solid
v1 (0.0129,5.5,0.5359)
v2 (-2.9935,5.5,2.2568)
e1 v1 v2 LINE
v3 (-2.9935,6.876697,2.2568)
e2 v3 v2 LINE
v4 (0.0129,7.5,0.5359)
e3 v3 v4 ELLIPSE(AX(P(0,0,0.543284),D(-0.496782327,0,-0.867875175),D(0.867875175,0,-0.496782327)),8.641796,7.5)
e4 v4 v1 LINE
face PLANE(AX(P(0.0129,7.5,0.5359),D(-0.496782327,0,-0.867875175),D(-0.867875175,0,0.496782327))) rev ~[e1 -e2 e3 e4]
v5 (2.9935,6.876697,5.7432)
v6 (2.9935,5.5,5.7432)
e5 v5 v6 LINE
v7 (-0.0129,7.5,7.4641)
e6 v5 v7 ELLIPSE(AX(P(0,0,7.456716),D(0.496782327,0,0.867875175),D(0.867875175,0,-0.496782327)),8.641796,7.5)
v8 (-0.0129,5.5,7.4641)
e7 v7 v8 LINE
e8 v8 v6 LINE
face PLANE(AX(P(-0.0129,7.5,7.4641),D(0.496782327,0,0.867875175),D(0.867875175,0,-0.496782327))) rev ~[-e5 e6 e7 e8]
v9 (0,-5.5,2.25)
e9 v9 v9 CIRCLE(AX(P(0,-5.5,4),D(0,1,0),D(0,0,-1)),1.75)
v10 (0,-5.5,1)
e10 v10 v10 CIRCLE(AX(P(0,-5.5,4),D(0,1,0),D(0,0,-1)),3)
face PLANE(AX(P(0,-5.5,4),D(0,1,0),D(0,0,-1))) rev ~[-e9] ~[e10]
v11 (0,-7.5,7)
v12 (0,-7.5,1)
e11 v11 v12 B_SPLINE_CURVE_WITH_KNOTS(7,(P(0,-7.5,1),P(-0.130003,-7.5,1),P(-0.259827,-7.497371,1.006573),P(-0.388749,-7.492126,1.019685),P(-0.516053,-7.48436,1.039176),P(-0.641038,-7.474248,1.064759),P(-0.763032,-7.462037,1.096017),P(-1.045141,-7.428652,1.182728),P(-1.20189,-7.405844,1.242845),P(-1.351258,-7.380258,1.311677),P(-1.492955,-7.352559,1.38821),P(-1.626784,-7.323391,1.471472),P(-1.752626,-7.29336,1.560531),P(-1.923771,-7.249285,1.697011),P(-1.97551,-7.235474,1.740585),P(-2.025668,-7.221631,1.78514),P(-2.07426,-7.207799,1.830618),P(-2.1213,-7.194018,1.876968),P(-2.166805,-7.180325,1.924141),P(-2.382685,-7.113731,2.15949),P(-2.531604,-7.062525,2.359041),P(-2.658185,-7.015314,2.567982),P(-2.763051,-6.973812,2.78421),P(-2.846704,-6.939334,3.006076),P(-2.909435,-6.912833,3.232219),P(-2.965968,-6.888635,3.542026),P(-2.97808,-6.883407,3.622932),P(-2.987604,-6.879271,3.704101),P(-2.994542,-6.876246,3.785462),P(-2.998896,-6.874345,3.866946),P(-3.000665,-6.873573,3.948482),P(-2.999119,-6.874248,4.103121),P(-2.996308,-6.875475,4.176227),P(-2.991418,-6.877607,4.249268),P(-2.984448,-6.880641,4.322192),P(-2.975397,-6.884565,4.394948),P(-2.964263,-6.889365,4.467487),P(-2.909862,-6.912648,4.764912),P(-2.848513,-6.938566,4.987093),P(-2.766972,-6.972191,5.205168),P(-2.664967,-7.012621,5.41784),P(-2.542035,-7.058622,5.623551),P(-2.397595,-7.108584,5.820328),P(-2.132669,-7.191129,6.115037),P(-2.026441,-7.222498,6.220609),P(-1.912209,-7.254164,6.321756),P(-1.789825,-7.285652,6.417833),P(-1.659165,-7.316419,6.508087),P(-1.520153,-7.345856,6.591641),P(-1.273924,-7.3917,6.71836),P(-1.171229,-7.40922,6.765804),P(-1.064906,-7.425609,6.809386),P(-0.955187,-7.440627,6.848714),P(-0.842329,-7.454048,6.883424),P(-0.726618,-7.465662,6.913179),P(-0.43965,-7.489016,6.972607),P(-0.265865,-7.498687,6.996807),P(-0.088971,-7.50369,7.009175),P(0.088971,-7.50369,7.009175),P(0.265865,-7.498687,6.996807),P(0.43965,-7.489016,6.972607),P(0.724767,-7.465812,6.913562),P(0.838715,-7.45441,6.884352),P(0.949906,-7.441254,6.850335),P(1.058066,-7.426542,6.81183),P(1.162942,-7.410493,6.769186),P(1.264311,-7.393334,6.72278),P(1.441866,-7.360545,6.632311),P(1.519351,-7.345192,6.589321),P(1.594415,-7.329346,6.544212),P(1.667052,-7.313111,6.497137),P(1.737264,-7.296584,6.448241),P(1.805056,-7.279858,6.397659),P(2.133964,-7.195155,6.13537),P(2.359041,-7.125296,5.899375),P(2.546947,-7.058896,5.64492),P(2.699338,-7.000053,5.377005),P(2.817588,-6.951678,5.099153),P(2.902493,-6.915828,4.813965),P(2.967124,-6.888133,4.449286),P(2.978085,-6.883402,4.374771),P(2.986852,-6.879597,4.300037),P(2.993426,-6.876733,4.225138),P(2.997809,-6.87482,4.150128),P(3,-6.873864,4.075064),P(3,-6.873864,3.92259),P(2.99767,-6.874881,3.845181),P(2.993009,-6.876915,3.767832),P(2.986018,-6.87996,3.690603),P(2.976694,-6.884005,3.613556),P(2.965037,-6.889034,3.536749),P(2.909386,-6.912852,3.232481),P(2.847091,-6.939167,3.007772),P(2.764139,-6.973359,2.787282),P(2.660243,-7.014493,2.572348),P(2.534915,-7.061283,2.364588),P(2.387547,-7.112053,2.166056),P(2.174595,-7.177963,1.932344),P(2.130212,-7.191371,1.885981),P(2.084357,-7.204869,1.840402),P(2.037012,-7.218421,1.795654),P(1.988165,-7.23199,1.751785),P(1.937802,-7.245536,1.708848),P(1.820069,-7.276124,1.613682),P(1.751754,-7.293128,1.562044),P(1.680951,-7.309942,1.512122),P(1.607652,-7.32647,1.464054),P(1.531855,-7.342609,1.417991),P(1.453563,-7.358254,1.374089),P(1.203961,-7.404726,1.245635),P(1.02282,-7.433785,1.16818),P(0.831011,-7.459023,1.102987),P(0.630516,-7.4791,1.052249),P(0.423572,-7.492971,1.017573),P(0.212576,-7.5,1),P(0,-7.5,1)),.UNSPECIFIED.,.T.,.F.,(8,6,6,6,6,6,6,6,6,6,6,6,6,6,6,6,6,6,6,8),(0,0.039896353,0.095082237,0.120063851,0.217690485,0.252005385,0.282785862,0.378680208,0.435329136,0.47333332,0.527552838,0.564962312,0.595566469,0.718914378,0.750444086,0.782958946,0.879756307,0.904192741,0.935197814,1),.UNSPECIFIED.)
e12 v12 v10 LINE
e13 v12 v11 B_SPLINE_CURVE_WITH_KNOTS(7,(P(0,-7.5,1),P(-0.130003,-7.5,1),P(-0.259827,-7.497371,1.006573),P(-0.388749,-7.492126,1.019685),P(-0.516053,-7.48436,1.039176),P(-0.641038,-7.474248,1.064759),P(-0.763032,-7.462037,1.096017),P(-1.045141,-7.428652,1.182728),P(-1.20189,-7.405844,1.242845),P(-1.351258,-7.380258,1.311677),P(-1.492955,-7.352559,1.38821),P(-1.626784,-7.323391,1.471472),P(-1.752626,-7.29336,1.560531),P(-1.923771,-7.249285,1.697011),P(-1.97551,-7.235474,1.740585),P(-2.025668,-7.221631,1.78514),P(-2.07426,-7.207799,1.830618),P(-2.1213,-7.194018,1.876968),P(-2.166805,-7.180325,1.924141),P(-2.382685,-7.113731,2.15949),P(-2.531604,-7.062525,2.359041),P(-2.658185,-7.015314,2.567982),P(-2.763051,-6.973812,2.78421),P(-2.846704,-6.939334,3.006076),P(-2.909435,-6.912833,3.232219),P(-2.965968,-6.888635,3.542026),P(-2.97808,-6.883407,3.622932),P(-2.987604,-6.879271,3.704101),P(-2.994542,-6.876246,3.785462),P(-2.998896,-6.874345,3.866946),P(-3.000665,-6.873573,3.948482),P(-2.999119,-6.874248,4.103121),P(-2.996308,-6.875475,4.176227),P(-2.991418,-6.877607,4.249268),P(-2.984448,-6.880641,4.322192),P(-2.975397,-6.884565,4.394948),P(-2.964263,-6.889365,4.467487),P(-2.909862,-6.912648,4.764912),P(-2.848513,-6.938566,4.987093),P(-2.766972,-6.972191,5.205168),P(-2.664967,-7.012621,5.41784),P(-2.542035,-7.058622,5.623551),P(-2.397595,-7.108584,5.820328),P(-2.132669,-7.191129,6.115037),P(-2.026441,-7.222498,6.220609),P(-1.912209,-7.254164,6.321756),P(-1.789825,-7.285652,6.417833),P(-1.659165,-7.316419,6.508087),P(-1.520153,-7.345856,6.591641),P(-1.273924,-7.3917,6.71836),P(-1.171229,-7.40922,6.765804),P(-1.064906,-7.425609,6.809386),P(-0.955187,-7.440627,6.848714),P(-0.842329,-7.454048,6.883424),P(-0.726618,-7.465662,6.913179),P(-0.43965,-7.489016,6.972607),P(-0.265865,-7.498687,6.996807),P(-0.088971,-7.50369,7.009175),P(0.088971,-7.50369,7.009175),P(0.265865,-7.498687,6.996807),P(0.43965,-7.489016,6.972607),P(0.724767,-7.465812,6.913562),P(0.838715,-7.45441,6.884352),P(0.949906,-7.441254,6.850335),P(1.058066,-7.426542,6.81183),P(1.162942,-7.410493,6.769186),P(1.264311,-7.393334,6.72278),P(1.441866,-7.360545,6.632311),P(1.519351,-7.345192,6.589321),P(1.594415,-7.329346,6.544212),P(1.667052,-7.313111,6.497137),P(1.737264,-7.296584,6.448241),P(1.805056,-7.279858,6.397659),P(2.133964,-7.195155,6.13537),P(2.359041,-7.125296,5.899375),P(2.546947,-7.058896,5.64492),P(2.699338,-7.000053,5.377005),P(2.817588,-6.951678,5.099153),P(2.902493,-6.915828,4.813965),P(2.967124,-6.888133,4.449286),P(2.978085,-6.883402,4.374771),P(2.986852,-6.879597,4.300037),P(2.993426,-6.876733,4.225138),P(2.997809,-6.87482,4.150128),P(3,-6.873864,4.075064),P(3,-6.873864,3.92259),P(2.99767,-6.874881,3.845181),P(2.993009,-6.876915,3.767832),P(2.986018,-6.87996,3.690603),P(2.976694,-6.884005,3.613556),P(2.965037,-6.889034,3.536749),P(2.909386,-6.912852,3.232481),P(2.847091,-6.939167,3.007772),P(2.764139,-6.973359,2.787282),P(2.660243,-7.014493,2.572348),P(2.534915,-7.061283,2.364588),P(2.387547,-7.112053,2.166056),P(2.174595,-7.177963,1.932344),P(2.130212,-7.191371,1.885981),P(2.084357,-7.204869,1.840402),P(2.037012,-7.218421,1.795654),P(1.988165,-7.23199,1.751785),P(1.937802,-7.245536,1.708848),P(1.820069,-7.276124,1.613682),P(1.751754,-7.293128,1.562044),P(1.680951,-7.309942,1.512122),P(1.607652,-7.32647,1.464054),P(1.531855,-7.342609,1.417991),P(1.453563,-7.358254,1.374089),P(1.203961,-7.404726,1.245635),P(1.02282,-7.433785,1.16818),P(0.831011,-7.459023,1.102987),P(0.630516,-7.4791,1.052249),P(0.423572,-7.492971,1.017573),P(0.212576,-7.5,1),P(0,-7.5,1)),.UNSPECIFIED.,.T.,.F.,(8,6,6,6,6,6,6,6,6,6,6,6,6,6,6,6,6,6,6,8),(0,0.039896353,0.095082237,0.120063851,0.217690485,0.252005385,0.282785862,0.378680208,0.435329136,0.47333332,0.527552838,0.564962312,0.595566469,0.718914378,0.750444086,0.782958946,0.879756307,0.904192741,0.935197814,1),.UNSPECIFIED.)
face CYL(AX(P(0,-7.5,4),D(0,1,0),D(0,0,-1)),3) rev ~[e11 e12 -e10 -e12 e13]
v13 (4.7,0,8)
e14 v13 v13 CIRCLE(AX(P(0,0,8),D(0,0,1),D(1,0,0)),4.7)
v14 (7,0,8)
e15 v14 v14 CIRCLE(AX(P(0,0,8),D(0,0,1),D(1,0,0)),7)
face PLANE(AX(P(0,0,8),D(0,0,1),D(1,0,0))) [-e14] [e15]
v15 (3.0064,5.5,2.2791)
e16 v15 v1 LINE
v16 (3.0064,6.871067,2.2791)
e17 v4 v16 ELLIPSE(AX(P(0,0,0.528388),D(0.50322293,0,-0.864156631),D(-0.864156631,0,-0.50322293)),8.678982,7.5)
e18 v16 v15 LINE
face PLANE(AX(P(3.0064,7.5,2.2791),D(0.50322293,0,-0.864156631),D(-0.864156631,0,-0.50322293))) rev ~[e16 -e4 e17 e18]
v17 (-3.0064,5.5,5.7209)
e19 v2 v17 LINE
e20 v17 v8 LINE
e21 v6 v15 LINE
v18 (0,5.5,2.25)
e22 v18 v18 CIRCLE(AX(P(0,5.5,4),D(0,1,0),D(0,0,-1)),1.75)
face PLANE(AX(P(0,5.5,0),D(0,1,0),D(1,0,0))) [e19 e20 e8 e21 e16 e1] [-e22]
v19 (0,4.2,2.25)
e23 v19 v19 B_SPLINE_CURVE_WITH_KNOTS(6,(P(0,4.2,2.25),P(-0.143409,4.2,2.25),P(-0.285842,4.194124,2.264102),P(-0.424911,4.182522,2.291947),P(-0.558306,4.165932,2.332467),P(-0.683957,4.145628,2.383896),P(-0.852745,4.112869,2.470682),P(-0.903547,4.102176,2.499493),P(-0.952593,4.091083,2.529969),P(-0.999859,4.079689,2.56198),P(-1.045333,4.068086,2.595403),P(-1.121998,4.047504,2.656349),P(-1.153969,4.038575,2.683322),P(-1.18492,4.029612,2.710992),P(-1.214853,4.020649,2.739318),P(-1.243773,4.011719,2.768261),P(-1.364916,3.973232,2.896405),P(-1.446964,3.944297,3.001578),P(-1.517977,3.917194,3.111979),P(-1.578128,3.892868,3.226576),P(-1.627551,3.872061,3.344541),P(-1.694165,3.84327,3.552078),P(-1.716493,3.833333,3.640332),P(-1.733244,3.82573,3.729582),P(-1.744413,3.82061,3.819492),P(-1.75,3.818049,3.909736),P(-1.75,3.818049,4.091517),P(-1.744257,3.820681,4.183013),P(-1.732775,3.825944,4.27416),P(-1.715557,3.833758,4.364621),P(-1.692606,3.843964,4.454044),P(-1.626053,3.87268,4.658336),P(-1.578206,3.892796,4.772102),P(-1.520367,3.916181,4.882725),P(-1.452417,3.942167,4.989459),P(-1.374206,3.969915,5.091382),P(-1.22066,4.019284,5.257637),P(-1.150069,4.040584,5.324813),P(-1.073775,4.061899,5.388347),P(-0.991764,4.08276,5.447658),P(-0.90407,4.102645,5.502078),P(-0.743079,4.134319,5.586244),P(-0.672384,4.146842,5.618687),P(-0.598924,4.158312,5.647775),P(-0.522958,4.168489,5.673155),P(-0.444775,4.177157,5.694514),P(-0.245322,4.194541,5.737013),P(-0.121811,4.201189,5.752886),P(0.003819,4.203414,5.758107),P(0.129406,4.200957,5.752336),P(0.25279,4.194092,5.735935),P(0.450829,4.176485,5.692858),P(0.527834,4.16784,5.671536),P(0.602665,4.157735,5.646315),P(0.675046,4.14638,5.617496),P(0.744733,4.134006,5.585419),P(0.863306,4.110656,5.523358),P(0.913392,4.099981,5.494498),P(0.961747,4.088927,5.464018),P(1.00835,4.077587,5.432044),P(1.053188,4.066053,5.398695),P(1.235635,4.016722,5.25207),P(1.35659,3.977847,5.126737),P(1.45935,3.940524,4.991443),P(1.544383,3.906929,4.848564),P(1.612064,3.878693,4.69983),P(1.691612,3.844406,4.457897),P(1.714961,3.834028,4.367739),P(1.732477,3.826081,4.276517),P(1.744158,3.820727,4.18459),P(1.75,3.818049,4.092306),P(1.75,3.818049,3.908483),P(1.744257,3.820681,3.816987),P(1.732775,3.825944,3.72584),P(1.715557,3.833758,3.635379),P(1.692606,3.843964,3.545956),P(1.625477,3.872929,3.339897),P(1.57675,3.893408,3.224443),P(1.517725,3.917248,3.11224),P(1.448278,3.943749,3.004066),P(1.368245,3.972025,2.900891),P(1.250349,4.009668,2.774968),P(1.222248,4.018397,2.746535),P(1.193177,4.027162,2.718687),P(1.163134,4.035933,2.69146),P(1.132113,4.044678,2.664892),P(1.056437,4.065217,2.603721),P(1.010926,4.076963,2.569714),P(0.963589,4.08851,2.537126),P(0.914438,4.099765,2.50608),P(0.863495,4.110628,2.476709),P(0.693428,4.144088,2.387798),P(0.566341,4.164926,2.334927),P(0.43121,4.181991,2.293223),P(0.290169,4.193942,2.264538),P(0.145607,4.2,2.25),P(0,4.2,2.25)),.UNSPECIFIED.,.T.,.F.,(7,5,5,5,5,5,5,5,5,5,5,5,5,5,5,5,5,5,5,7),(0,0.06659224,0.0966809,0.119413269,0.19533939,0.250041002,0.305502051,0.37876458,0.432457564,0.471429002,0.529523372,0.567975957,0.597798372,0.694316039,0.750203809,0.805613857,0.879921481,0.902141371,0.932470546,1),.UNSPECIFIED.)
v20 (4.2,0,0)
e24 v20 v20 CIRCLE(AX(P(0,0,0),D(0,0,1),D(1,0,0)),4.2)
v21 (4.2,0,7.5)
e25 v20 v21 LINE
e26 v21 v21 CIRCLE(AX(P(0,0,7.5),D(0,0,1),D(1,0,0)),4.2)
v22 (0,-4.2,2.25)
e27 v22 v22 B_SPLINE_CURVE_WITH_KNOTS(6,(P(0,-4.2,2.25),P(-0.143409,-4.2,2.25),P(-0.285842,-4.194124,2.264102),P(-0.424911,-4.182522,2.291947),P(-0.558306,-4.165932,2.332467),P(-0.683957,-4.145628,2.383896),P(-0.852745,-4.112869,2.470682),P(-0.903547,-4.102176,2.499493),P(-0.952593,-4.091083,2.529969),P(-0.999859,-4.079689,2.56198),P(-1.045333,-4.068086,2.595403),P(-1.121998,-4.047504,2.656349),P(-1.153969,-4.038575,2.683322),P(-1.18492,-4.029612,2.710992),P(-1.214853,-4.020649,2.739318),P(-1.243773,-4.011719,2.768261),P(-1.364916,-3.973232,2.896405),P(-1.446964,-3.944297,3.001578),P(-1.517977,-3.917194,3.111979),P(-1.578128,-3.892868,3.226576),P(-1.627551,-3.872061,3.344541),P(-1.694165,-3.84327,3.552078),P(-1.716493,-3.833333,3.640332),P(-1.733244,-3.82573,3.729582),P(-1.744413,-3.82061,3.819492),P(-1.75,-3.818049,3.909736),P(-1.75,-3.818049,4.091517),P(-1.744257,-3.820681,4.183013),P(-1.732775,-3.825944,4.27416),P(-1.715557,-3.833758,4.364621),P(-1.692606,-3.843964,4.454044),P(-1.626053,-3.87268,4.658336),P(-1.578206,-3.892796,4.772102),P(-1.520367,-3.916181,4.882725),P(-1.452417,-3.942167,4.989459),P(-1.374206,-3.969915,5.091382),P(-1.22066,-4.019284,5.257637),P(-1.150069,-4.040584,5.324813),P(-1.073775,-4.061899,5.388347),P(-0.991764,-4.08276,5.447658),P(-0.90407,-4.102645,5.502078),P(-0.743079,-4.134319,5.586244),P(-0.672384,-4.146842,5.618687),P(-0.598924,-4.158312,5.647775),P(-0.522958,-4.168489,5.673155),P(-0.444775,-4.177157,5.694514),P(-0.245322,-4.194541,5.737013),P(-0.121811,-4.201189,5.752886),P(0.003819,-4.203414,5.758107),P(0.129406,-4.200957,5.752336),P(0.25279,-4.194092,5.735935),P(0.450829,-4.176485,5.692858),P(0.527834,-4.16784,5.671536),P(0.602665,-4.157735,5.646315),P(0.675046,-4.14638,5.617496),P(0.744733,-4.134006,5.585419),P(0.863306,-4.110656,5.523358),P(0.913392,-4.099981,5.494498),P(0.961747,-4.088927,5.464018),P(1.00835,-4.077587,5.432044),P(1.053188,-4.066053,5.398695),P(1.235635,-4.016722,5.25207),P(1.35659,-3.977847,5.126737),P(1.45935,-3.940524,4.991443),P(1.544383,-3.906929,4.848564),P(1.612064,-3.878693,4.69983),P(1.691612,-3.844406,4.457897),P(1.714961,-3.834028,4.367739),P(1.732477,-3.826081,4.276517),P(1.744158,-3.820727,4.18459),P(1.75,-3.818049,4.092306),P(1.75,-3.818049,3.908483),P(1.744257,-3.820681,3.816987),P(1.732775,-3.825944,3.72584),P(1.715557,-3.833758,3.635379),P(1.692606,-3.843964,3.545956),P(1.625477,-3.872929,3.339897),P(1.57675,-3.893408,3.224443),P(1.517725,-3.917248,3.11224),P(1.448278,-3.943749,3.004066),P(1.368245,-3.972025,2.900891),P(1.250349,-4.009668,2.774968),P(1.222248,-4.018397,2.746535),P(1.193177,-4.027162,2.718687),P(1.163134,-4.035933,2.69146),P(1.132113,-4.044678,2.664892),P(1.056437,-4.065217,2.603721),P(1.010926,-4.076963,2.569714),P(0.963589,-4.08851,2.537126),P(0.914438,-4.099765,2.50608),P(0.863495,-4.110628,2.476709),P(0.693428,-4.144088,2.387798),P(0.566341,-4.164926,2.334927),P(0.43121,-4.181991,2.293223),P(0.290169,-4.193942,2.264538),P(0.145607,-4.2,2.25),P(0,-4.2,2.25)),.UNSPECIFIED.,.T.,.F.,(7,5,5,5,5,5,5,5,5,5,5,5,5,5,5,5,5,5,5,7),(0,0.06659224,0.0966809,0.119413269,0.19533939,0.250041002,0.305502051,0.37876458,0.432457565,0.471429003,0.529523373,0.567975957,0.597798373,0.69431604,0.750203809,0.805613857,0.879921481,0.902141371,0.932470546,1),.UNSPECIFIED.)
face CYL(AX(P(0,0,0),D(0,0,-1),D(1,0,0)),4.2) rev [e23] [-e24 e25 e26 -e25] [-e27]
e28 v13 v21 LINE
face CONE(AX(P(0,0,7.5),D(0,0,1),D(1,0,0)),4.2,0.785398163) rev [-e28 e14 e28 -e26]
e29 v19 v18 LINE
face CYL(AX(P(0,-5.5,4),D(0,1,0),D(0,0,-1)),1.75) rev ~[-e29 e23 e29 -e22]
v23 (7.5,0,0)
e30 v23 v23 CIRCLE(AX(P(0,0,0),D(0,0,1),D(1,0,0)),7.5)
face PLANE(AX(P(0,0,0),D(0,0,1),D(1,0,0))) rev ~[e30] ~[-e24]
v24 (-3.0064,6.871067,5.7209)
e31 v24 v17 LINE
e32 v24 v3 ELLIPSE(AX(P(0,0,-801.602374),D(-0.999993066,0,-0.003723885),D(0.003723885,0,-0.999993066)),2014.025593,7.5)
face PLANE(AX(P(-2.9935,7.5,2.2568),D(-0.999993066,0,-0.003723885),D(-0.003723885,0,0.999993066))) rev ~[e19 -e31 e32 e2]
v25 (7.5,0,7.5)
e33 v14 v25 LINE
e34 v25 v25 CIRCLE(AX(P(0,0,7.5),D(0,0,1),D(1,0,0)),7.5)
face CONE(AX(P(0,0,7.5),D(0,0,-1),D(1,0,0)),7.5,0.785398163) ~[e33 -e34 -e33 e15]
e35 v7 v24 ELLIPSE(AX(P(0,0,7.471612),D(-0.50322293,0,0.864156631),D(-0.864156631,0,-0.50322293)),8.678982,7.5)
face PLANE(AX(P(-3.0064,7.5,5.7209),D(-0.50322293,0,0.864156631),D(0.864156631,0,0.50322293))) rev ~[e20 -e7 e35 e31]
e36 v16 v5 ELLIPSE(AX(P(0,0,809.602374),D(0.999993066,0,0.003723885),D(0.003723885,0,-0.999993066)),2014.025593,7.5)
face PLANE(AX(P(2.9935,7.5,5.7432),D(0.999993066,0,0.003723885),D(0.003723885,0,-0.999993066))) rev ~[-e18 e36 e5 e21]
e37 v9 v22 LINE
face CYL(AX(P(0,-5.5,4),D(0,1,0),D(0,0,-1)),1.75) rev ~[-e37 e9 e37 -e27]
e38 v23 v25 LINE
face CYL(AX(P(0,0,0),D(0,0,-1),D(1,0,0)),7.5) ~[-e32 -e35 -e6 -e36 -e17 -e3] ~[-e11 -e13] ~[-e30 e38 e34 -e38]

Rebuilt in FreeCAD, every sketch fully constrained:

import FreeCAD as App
import Part
import Sketcher

V = App.Vector


def edges_at(feature, points):
    """Names of the edges that pass closest to the given points."""
    edges = feature.Shape.Edges
    near = lambda p: min(range(len(edges)), key=lambda i: edges[i].distToShape(Part.Vertex(*p))[0])
    return sorted({f"Edge{near(p) + 1}" for p in points})

doc = App.newDocument("Part")
body = doc.addObject("PartDesign::Body", "Body")

sketch1 = doc.addObject("Sketcher::SketchObject", "Sketch")
body.addObject(sketch1)
sketch1.AttachmentSupport = (doc.XY_Plane, [""])
sketch1.MapMode = "FlatFace"
sketch1.addGeometry([
    Part.Circle(V(0, 0, 0), V(0, 0, 1), 7.5),
    Part.Circle(V(0, 0, 0), V(0, 0, 1), 4.2),
], False)
sketch1.addConstraint([
    Sketcher.Constraint("Coincident", 0, 3, -1, 1),
    Sketcher.Constraint("Coincident", 1, 3, -1, 1),
    Sketcher.Constraint("Diameter", 0, 15.0),
    Sketcher.Constraint("Diameter", 1, 8.4),
])
pad1 = doc.addObject("PartDesign::Pad", "Pad")
body.addObject(pad1)
pad1.Profile = sketch1
pad1.Length = 8

sketch2 = doc.addObject("Sketcher::SketchObject", "Sketch001")
body.addObject(sketch2)
sketch2.AttachmentSupport = (doc.XZ_Plane, [""])
sketch2.MapMode = "FlatFace"
sketch2.AttachmentOffset = App.Placement(V(0, 0, 7.5), App.Rotation())
sketch2.addGeometry(Part.Circle(V(0, 4, 0), V(0, 0, 1), 1.8), False)
sketch2.addConstraint([
    Sketcher.Constraint("PointOnObject", 0, 3, -2),
    Sketcher.Constraint("Diameter", 0, 3.5),
    Sketcher.Constraint("DistanceY", -1, 1, 0, 3, 4.0),
])
doc.recompute()
hole = doc.addObject("PartDesign::Hole", "Hole")
body.addObject(hole)
hole.Profile = sketch2
hole.ThreadType = "None"
hole.Diameter = 3.5
hole.DepthType = "Dimension"
hole.Depth = 15
hole.DrillPoint = "Flat"
hole.HoleCutType = "Counterbore"
hole.HoleCutDiameter = 6
hole.HoleCutDepth = 2

sketch3 = doc.addObject("Sketcher::SketchObject", "Sketch002")
body.addObject(sketch3)
sketch3.AttachmentSupport = (doc.XZ_Plane, [""])
sketch3.MapMode = "FlatFace"
sketch3.AttachmentOffset = App.Placement(V(0, 0, -7.5), App.Rotation())
sketch3.addGeometry([
    Part.LineSegment(V(0, 0.5, 0), V(-3, 2.3, 0)),
    Part.LineSegment(V(-3, 2.3, 0), V(-3, 5.7, 0)),
    Part.LineSegment(V(-3, 5.7, 0), V(0, 7.5, 0)),
    Part.LineSegment(V(0, 7.5, 0), V(3, 5.7, 0)),
    Part.LineSegment(V(3, 5.7, 0), V(3, 2.3, 0)),
    Part.LineSegment(V(3, 2.3, 0), V(0, 0.5, 0)),
], False)
sketch3.addConstraint([
    Sketcher.Constraint("Coincident", 0, 2, 1, 1),
    Sketcher.Constraint("Coincident", 1, 2, 2, 1),
    Sketcher.Constraint("Coincident", 2, 2, 3, 1),
    Sketcher.Constraint("Coincident", 3, 2, 4, 1),
    Sketcher.Constraint("Coincident", 4, 2, 5, 1),
    Sketcher.Constraint("Coincident", 5, 2, 0, 1),
    Sketcher.Constraint("Parallel", 0, 3),
    Sketcher.Constraint("Parallel", 1, 4),
    Sketcher.Constraint("Parallel", 2, 5),
    Sketcher.Constraint("Equal", 0, 1),
    Sketcher.Constraint("Equal", 1, 2),
    Sketcher.Constraint("Equal", 2, 3),
    Sketcher.Constraint("DistanceX", 1, 2, 3, 2, 6.0),
    Sketcher.Constraint("Distance", 0, 3.464),
    Sketcher.Constraint("DistanceY", -1, 1, 1, 2, 5.721),
    Sketcher.Constraint("DistanceX", 2, 2, -1, 1, 0.013),
    Sketcher.Constraint("DistanceY", -1, 1, 2, 2, 7.464),
    Sketcher.Constraint("DistanceX", -1, 1, 5, 2, 0.013),
])
pocket1 = doc.addObject("PartDesign::Pocket", "Pocket")
body.addObject(pocket1)
pocket1.Profile = sketch3
pocket1.Length = 2
pocket1.Reversed = True
doc.recompute()

chamfer = doc.addObject("PartDesign::Chamfer", "Chamfer")
body.addObject(chamfer)
chamfer.Base = (pocket1, edges_at(pocket1, [(-3.916, 1.519, 8)]))
chamfer.Size = 0.5
doc.recompute()

chamfer2 = doc.addObject("PartDesign::Chamfer", "Chamfer001")
body.addObject(chamfer2)
chamfer2.Base = (chamfer, edges_at(chamfer, [(-6.992, -2.712, 8)]))
chamfer2.Size = 0.5

doc.recompute()
